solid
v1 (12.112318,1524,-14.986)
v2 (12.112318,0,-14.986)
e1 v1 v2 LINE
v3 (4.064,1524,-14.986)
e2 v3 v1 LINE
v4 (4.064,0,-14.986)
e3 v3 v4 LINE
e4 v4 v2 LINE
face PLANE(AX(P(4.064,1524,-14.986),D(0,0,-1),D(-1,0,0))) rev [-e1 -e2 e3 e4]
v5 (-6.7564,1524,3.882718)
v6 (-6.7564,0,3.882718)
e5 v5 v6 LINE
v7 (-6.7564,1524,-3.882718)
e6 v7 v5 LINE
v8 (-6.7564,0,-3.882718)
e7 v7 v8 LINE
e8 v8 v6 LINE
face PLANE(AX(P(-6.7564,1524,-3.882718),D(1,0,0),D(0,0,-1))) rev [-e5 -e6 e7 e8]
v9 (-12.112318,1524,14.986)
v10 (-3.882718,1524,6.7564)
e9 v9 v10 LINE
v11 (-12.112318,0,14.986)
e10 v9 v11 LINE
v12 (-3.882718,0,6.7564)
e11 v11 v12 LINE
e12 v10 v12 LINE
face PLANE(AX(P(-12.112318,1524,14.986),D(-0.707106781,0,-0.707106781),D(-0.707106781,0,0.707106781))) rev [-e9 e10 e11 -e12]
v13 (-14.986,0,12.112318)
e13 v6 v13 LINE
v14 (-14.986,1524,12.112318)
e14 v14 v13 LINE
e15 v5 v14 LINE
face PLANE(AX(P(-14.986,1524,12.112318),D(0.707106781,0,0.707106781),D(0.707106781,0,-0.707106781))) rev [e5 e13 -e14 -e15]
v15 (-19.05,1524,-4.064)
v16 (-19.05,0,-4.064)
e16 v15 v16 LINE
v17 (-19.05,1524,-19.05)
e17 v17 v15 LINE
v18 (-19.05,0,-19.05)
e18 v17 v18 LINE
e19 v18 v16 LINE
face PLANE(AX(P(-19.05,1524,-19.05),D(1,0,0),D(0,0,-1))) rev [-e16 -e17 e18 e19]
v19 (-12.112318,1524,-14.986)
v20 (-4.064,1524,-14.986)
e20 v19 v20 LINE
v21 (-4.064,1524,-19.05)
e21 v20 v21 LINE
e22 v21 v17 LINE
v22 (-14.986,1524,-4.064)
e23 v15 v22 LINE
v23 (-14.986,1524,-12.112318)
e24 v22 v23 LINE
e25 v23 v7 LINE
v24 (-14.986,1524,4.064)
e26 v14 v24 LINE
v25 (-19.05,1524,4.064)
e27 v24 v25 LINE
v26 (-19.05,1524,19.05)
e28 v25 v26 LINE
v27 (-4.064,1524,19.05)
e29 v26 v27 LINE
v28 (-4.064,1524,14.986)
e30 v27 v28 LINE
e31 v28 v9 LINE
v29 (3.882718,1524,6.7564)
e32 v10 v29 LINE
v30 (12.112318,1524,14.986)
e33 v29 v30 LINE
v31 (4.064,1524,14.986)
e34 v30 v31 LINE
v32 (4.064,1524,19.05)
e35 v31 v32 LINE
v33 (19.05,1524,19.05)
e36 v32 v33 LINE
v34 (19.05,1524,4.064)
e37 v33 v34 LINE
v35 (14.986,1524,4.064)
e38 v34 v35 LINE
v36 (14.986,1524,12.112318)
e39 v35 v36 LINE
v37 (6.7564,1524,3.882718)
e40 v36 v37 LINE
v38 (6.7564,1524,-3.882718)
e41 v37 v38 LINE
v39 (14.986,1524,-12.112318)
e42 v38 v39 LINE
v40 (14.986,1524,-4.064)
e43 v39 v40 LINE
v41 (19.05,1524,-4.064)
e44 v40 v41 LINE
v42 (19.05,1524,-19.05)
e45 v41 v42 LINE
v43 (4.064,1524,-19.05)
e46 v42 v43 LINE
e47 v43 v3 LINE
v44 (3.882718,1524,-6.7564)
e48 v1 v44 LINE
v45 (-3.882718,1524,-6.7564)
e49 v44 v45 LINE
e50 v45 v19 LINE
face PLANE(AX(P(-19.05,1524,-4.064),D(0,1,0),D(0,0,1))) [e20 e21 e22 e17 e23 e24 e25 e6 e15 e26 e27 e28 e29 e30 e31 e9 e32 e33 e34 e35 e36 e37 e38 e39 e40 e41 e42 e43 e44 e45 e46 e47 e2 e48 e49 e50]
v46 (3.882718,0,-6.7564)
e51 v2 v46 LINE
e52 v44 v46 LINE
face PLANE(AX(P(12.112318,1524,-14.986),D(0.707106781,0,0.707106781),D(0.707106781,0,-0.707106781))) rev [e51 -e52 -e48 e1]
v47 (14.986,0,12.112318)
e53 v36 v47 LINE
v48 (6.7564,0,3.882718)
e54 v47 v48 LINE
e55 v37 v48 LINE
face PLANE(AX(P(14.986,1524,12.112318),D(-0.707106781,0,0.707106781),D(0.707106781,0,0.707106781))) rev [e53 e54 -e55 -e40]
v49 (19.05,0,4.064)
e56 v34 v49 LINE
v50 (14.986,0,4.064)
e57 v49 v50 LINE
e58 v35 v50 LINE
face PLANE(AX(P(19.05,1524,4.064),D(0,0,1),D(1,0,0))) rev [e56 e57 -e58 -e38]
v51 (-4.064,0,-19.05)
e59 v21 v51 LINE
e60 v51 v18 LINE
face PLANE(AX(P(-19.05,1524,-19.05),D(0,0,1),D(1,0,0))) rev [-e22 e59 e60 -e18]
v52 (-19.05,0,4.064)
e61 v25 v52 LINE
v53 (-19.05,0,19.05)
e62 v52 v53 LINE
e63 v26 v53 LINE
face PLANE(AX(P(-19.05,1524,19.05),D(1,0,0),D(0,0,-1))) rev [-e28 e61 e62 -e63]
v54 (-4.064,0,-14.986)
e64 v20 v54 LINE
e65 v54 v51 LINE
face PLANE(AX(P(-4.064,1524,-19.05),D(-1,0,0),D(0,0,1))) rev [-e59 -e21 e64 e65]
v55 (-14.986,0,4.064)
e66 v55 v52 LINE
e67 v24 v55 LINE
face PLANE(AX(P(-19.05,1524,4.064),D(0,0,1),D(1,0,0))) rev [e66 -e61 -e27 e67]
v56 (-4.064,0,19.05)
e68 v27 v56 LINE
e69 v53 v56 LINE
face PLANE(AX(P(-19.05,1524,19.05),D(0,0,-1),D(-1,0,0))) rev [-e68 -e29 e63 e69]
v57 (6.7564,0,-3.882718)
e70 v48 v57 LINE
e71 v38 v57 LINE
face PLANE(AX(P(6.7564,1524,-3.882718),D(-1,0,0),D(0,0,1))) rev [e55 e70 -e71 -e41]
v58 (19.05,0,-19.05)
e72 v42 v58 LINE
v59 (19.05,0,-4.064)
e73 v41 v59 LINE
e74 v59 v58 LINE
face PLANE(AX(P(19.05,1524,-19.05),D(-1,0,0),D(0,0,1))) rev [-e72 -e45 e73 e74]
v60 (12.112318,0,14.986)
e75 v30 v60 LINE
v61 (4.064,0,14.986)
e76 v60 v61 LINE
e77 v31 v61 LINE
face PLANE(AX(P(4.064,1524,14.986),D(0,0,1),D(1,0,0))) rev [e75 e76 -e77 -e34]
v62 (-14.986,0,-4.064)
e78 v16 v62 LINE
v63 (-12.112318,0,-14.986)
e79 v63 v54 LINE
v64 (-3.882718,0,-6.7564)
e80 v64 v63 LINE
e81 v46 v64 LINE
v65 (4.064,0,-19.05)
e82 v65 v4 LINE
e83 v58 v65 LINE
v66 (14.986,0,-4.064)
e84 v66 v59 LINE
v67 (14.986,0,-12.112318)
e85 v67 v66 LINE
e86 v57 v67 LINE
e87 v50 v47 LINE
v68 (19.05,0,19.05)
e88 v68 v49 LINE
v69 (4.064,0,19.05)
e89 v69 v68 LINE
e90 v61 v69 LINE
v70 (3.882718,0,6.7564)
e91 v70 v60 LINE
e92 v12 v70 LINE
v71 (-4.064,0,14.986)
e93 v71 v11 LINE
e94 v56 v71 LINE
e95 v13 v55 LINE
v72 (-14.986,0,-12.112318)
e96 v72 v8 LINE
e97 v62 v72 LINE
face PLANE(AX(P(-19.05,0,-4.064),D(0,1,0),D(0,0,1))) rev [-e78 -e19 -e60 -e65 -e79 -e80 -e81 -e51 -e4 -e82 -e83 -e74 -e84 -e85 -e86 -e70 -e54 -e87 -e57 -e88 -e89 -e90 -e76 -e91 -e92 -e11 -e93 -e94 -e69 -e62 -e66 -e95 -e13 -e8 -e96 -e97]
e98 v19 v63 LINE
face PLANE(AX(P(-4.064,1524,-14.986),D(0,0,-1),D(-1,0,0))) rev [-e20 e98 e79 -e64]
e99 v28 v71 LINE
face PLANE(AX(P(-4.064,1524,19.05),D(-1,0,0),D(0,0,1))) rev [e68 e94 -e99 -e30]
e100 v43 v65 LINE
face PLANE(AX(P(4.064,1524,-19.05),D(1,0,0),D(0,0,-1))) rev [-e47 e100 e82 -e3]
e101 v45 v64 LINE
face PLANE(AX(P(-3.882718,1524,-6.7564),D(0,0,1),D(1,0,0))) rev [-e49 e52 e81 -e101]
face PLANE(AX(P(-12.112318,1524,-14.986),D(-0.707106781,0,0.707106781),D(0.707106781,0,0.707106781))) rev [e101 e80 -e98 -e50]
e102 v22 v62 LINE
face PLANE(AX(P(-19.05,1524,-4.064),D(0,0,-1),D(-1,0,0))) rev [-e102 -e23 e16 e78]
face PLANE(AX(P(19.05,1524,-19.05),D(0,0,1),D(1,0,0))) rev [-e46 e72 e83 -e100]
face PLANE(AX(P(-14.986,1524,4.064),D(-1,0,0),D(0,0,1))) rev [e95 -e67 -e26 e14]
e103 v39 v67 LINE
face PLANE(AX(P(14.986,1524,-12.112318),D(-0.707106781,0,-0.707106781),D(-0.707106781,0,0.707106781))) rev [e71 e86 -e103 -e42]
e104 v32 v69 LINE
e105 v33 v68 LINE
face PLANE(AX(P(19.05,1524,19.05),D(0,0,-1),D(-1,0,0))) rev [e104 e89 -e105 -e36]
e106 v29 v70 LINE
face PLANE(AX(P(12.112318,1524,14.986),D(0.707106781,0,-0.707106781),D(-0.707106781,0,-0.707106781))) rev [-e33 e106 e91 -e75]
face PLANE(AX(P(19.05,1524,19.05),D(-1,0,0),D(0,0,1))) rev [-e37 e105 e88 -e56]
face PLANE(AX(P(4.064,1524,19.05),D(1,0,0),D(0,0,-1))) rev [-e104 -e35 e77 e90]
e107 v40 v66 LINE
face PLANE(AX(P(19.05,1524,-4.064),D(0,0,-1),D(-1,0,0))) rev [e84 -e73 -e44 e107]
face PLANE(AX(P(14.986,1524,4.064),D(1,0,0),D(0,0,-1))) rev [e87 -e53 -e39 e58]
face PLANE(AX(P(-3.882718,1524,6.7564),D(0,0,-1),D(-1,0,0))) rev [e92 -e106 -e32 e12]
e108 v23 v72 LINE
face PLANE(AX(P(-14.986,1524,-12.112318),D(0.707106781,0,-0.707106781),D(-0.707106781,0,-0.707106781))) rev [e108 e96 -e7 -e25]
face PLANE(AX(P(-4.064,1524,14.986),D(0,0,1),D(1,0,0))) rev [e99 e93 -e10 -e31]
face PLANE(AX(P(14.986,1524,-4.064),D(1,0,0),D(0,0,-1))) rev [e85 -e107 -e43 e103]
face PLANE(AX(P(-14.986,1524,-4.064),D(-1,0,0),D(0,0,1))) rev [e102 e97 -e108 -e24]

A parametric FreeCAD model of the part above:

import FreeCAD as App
import Part
import Sketcher
from FreeCAD import Vector
Q = App.Units.Quantity


def add_polygon(sketch, points):
    """Adds a closed chain of lines whose ends are joined by coincident constraints."""
    first, n = sketch.GeometryCount, len(points)
    for a, b in zip(points, points[1:] + points[:1]):
        sketch.addGeometry(Part.LineSegment(App.Vector(*a, 0), App.Vector(*b, 0)), False)
    for i in range(n):
        sketch.addConstraint(Sketcher.Constraint("Coincident", first + i, 2, first + (i + 1) % n, 1))

doc = App.newDocument("Part")
body = doc.addObject("PartDesign::Body", "Body")

# Sketch on XZ plane
sketch1 = body.newObject("Sketcher::SketchObject", "Sketch")
sketch1.AttachmentSupport = (doc.getObject("XZ_Plane"), [""])
sketch1.MapMode = "FlatFace"
add_polygon(sketch1, [(-4.064, -19.05), (-19.05, -19.05), (-19.05, -4.064), (-14.986, -4.064), (-14.986, -12.112318), (-6.7564, -3.882718), (-6.7564, 3.882718), (-14.986, 12.112318), (-14.986, 4.064), (-19.05, 4.064), (-19.05, 19.05), (-4.064, 19.05), (-4.064, 14.986), (-12.112318, 14.986), (-3.882718, 6.7564), (3.882718, 6.7564), (12.112318, 14.986), (4.064, 14.986), (4.064, 19.05), (19.05, 19.05), (19.05, 4.064), (14.986, 4.064), (14.986, 12.112318), (6.7564, 3.882718), (6.7564, -3.882718), (14.986, -12.112318), (14.986, -4.064), (19.05, -4.064), (19.05, -19.05), (4.064, -19.05), (4.064, -14.986), (12.112318, -14.986), (3.882718, -6.7564), (-3.882718, -6.7564), (-12.112318, -14.986), (-4.064, -14.986)])  # lines 0-35
sketch1.addConstraint([
    Sketcher.Constraint("Horizontal", 0),
    Sketcher.Constraint("Vertical", 1),
    Sketcher.Constraint("Horizontal", 2),
    Sketcher.Constraint("Vertical", 3),
    Sketcher.Constraint("Vertical", 5),
    Sketcher.Constraint("Vertical", 7),
    Sketcher.Constraint("Horizontal", 8),
    Sketcher.Constraint("Vertical", 9),
    Sketcher.Constraint("Horizontal", 10),
    Sketcher.Constraint("Vertical", 11),
    Sketcher.Constraint("Horizontal", 12),
    Sketcher.Constraint("Horizontal", 14),
    Sketcher.Constraint("Horizontal", 16),
    Sketcher.Constraint("Vertical", 17),
    Sketcher.Constraint("Horizontal", 18),
    Sketcher.Constraint("Vertical", 19),
    Sketcher.Constraint("Horizontal", 20),
    Sketcher.Constraint("Vertical", 21),
    Sketcher.Constraint("Vertical", 23),
    Sketcher.Constraint("Vertical", 25),
    Sketcher.Constraint("Horizontal", 26),
    Sketcher.Constraint("Vertical", 27),
    Sketcher.Constraint("Horizontal", 28),
    Sketcher.Constraint("Vertical", 29),
    Sketcher.Constraint("Horizontal", 30),
    Sketcher.Constraint("Horizontal", 32),
    Sketcher.Constraint("Horizontal", 34),
    Sketcher.Constraint("Vertical", 35),
    Sketcher.Constraint("Symmetric", 0, 2, 18, 2, -1, 1),
    Sketcher.Constraint("Symmetric", 2, 2, 20, 2, -1, 1),
    Sketcher.Constraint("Symmetric", 4, 2, 22, 2, -1, 1),
    Sketcher.Constraint("Symmetric", 6, 2, 24, 2, -1, 1),
    Sketcher.Constraint("Symmetric", 8, 2, 26, 2, -1, 1),
    Sketcher.Constraint("Symmetric", 10, 2, 28, 2, -1, 1),
    Sketcher.Constraint("Symmetric", 12, 2, 30, 2, -1, 1),
    Sketcher.Constraint("Symmetric", 13, 2, 31, 2, -1, 1),
    Sketcher.Constraint("Symmetric", 15, 2, 33, 2, -1, 1),
    Sketcher.Constraint("Symmetric", 12, 2, 15, 2, -2),
    Sketcher.Constraint("Symmetric", 10, 2, 17, 2, -2),
    Sketcher.Constraint("Symmetric", 8, 2, 19, 2, -2),
    Sketcher.Constraint("Symmetric", 6, 2, 21, 2, -2),
    Sketcher.Constraint("Perpendicular", 4, 6),
    Sketcher.Constraint("Parallel", 6, 13),
    Sketcher.Constraint("Perpendicular", 13, 15),
    Sketcher.Constraint("Parallel", 15, 22),
    Sketcher.Constraint("Perpendicular", 22, 24),
    Sketcher.Constraint("Perpendicular", 31, 33),
    Sketcher.Constraint("Horizontal", 5, 2, 22, 2),
    Sketcher.Constraint("Vertical", 11, 2, 34, 2),
    Sketcher.Constraint("Equal", 28, 1),
    Sketcher.Constraint("Equal", 34, 3),
    Sketcher.Constraint("Equal", 32, 5),
    Sketcher.Constraint("Equal", 26, 11),
    Sketcher.Constraint("Equal", 6, 13),
    Sketcher.Constraint("DistanceX", 0, 2, 0, 1, Q("0.59 in")),
    Sketcher.Constraint("DistanceX", 2, 1, 2, 2, Q("0.16 in")),
    Sketcher.Constraint("DistanceX", 0, 2, -1, 1, Q("0.75 in")),
    Sketcher.Constraint("DistanceX", 4, 2, -1, 1, Q("0.266 in")),
    Sketcher.Constraint("DistanceX", 12, 2, 12, 1, 8.048318),
])
pad1 = body.newObject("PartDesign::Pad", "Pad")
pad1.Profile = sketch1
pad1.Length = Q("60 in")
pad1.Reversed = True

doc.recompute()
